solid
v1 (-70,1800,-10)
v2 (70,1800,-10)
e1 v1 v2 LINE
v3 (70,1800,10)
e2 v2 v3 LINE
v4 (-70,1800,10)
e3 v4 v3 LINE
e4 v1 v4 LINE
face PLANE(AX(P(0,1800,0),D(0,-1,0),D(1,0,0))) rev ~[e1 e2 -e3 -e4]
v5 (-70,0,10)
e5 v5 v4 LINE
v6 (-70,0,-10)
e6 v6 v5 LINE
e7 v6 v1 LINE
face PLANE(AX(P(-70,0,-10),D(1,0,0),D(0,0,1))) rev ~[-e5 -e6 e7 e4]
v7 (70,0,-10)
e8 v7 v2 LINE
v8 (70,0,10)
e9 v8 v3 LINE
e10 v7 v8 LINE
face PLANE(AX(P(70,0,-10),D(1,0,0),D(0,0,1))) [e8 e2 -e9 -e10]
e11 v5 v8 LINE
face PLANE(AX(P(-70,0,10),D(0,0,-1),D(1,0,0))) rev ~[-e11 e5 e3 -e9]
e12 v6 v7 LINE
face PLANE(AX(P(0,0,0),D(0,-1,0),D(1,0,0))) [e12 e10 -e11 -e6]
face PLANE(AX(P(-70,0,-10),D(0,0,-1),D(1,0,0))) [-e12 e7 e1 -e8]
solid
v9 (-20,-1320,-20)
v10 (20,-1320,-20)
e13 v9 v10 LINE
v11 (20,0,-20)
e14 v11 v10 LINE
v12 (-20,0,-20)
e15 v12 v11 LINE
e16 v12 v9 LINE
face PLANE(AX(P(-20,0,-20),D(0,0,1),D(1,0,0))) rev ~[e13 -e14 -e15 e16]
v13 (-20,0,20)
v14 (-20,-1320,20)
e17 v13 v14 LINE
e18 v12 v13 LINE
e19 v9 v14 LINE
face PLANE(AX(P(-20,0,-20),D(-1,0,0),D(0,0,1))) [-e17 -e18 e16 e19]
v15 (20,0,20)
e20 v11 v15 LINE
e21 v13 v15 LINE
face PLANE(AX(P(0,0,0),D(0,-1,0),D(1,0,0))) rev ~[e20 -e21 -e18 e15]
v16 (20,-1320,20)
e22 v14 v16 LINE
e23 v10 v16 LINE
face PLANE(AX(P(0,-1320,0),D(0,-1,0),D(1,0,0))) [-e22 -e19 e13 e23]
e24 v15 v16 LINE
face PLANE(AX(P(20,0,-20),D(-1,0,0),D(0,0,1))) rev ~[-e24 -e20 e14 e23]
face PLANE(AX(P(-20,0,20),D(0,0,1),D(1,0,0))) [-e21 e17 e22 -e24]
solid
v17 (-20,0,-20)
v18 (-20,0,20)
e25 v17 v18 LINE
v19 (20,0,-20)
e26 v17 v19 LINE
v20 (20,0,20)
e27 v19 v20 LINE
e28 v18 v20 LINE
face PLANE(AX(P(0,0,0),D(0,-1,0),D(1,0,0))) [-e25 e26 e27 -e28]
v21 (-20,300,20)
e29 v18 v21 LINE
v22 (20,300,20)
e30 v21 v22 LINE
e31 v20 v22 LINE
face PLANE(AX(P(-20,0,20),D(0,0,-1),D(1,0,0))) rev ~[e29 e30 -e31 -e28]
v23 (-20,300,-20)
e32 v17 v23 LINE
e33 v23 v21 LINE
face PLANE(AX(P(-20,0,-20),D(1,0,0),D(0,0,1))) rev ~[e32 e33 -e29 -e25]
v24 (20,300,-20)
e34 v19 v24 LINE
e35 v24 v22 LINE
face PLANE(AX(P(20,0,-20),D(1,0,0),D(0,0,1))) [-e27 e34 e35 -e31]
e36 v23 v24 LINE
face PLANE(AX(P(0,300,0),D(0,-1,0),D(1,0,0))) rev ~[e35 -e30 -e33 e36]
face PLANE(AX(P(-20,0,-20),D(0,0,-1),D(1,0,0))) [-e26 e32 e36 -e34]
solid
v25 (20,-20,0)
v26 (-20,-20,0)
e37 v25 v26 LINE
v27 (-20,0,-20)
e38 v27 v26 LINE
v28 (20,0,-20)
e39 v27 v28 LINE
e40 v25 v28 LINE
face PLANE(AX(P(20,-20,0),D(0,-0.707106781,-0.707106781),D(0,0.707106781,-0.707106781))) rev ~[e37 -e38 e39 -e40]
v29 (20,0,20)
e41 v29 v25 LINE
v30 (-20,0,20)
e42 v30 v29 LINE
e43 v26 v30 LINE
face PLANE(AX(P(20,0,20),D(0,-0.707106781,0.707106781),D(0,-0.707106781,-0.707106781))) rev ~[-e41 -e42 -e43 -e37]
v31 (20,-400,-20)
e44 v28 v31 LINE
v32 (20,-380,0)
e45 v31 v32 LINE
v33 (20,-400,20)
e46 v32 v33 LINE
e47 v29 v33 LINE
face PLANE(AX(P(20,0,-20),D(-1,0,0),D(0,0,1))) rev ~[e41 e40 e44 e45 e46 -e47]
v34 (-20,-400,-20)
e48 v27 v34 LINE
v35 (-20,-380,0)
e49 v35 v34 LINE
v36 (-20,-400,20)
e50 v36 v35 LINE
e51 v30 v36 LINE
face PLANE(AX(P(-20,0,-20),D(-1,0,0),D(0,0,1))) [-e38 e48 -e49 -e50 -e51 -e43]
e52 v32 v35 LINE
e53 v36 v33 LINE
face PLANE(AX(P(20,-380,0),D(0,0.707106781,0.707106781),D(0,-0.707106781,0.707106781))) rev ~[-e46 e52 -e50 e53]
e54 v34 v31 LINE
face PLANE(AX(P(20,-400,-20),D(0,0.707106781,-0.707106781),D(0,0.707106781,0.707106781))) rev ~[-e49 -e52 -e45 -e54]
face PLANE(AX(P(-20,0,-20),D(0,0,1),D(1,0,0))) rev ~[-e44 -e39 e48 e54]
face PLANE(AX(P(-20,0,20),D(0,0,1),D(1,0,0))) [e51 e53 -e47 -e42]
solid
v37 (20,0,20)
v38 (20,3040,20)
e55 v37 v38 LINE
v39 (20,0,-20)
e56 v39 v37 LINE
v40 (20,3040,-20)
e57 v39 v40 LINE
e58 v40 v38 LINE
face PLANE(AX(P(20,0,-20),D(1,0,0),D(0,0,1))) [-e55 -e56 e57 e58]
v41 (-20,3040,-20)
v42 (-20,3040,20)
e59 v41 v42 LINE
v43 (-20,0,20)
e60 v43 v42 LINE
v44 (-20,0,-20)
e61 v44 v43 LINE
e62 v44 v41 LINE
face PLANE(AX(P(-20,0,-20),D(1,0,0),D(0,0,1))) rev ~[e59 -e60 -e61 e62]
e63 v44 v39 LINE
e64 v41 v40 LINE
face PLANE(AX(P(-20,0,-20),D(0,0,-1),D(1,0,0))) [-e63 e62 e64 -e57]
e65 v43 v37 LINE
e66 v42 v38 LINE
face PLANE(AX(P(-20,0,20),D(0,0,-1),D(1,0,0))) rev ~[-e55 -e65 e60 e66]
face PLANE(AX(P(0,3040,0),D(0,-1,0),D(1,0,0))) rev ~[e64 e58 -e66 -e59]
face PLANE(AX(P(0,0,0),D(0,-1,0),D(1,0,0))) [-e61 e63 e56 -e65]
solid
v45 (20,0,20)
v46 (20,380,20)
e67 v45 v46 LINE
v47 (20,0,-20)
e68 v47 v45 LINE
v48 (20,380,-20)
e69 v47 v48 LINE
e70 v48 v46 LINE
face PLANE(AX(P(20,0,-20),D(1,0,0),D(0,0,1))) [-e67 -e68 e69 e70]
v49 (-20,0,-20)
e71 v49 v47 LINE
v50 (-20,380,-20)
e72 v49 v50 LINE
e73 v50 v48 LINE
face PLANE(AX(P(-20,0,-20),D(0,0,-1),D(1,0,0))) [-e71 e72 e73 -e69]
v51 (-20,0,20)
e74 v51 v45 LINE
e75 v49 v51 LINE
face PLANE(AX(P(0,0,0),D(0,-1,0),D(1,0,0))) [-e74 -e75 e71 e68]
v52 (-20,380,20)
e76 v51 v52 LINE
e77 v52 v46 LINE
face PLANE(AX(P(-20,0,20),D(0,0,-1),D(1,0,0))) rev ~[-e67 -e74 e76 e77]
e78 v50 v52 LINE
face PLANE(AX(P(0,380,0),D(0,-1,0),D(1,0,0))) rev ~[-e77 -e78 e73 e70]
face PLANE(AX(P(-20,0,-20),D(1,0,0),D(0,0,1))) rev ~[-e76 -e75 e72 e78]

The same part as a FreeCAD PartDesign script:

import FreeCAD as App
import Part
import Sketcher
Q = App.Units.Quantity


def add_polygon(sketch, points):
    """Adds a closed chain of lines whose ends are joined by coincident constraints."""
    first, n = sketch.GeometryCount, len(points)
    for a, b in zip(points, points[1:] + points[:1]):
        sketch.addGeometry(Part.LineSegment(App.Vector(*a, 0), App.Vector(*b, 0)), False)
    for i in range(n):
        sketch.addConstraint(Sketcher.Constraint("Coincident", first + i, 2, first + (i + 1) % n, 1))

doc = App.newDocument("Part")
body = doc.addObject("PartDesign::Body", "Body")

# Sketch on XZ plane
sketch1 = doc.addObject("Sketcher::SketchObject", "Sketch")
body.addObject(sketch1)
sketch1.AttachmentSupport = (doc.XZ_Plane, [""])
sketch1.MapMode = "FlatFace"
add_polygon(sketch1, [(-70, 10), (-70, -10), (70, -10), (70, 10)])  # lines 0-3
sketch1.addConstraint([
    Sketcher.Constraint("Vertical", 0),
    Sketcher.Constraint("Horizontal", 1),
    Sketcher.Constraint("Vertical", 2),
    Sketcher.Constraint("Horizontal", 3),
    Sketcher.Constraint("Symmetric", 0, 2, 2, 2, -1, 1),
    Sketcher.Constraint("DistanceX", 1, 1, 1, 2, Q("140 mm")),
    Sketcher.Constraint("DistanceY", 0, 2, 0, 1, Q("20 mm")),
])
pad1 = doc.addObject("PartDesign::Pad", "Pad")
body.addObject(pad1)
pad1.Profile = sketch1
pad1.Length = 1800
pad1.Reversed = True
body2 = doc.addObject("PartDesign::Body", "Body001")

# Sketch on XZ plane
sketch2 = doc.addObject("Sketcher::SketchObject", "Sketch001")
body2.addObject(sketch2)
sketch2.AttachmentSupport = (doc.getObject("XZ_Plane001"), [""])
sketch2.MapMode = "FlatFace"
add_polygon(sketch2, [(-20, 20), (-20, -20), (20, -20), (20, 20)])  # lines 0-3
sketch2.addConstraint([
    Sketcher.Constraint("Vertical", 0),
    Sketcher.Constraint("Horizontal", 1),
    Sketcher.Constraint("Vertical", 2),
    Sketcher.Constraint("Horizontal", 3),
    Sketcher.Constraint("Symmetric", 0, 2, 2, 2, -1, 1),
    Sketcher.Constraint("Equal", 3, 0),
    Sketcher.Constraint("DistanceX", 1, 1, 1, 2, Q("40 mm")),
])
pad2 = doc.addObject("PartDesign::Pad", "Pad001")
body2.addObject(pad2)
pad2.Profile = sketch2
pad2.Length = 380
pad2.Reversed = True
body3 = doc.addObject("PartDesign::Body", "Body002")

# Sketch on XZ plane
sketch3 = doc.addObject("Sketcher::SketchObject", "Sketch002")
body3.addObject(sketch3)
sketch3.AttachmentSupport = (doc.getObject("XZ_Plane002"), [""])
sketch3.MapMode = "FlatFace"
add_polygon(sketch3, [(-20, 20), (-20, -20), (20, -20), (20, 20)])  # lines 0-3
sketch3.addConstraint([
    Sketcher.Constraint("Vertical", 0),
    Sketcher.Constraint("Horizontal", 1),
    Sketcher.Constraint("Vertical", 2),
    Sketcher.Constraint("Horizontal", 3),
    Sketcher.Constraint("Symmetric", 0, 2, 2, 2, -1, 1),
    Sketcher.Constraint("Equal", 3, 0),
    Sketcher.Constraint("DistanceX", 1, 1, 1, 2, Q("40 mm")),
])
pad3 = doc.addObject("PartDesign::Pad", "Pad002")
body3.addObject(pad3)
pad3.Profile = sketch3
pad3.Length = 400

# Sketch on YZ plane
sketch4 = doc.addObject("Sketcher::SketchObject", "Sketch003")
body3.addObject(sketch4)
sketch4.AttachmentSupport = (doc.getObject("YZ_Plane002"), [""])
sketch4.MapMode = "FlatFace"
sketch4.AttachmentOffset = App.Placement(App.Vector(0, 0, 20), App.Rotation())
add_polygon(sketch4, [(0, -20), (0, 20), (-20, 0)])  # lines 0-2
add_polygon(sketch4, [(-380, 0), (-400, 20), (-400, -20)])  # lines 3-5
sketch4.addConstraint([
    Sketcher.Constraint("Vertical", 0),
    Sketcher.Constraint("Vertical", 4),
    Sketcher.Constraint("Symmetric", 0, 2, 2, 2, -1, 1),
    Sketcher.Constraint("PointOnObject", 1, 2, -1),
    Sketcher.Constraint("PointOnObject", 5, 2, -1),
    Sketcher.Constraint("Perpendicular", 1, 2),
    Sketcher.Constraint("Parallel", 2, 3),
    Sketcher.Constraint("Perpendicular", 3, 5),
    Sketcher.Constraint("Horizontal", 0, 2, 3, 2),
    Sketcher.Constraint("DistanceY", 0, 1, 0, 2, Q("40 mm")),
    Sketcher.Constraint("DistanceX", 3, 2, -1, 1, Q("400 mm")),
])
pocket1 = doc.addObject("PartDesign::Pocket", "Pocket")
body3.addObject(pocket1)
pocket1.Profile = sketch4
pocket1.Length = 84
body4 = doc.addObject("PartDesign::Body", "Body003")

# Sketch on XZ plane
sketch5 = doc.addObject("Sketcher::SketchObject", "Sketch004")
body4.addObject(sketch5)
sketch5.AttachmentSupport = (doc.getObject("XZ_Plane003"), [""])
sketch5.MapMode = "FlatFace"
add_polygon(sketch5, [(-20, 20), (-20, -20), (20, -20), (20, 20)])  # lines 0-3
sketch5.addConstraint([
    Sketcher.Constraint("Vertical", 0),
    Sketcher.Constraint("Horizontal", 1),
    Sketcher.Constraint("Vertical", 2),
    Sketcher.Constraint("Horizontal", 3),
    Sketcher.Constraint("Symmetric", 0, 2, 2, 2, -1, 1),
    Sketcher.Constraint("Equal", 3, 0),
    Sketcher.Constraint("DistanceX", 1, 1, 1, 2, Q("40 mm")),
])
pad4 = doc.addObject("PartDesign::Pad", "Pad003")
body4.addObject(pad4)
pad4.Profile = sketch5
pad4.Length = 300
pad4.Reversed = True
body5 = doc.addObject("PartDesign::Body", "Body004")

# Sketch on XZ plane
sketch6 = doc.addObject("Sketcher::SketchObject", "Sketch005")
body5.addObject(sketch6)
sketch6.AttachmentSupport = (doc.getObject("XZ_Plane004"), [""])
sketch6.MapMode = "FlatFace"
add_polygon(sketch6, [(-20, 20), (-20, -20), (20, -20), (20, 20)])  # lines 0-3
sketch6.addConstraint([
    Sketcher.Constraint("Vertical", 0),
    Sketcher.Constraint("Horizontal", 1),
    Sketcher.Constraint("Vertical", 2),
    Sketcher.Constraint("Horizontal", 3),
    Sketcher.Constraint("Symmetric", 0, 2, 2, 2, -1, 1),
    Sketcher.Constraint("Equal", 3, 0),
    Sketcher.Constraint("DistanceX", 1, 1, 1, 2, Q("40 mm")),
])
pad5 = doc.addObject("PartDesign::Pad", "Pad004")
body5.addObject(pad5)
pad5.Profile = sketch6
pad5.Length = 1320
body6 = doc.addObject("PartDesign::Body", "Body005")

# Sketch on XZ plane
sketch7 = doc.addObject("Sketcher::SketchObject", "Sketch006")
body6.addObject(sketch7)
sketch7.AttachmentSupport = (doc.getObject("XZ_Plane005"), [""])
sketch7.MapMode = "FlatFace"
add_polygon(sketch7, [(-20, 20), (-20, -20), (20, -20), (20, 20)])  # lines 0-3
sketch7.addConstraint([
    Sketcher.Constraint("Vertical", 0),
    Sketcher.Constraint("Horizontal", 1),
    Sketcher.Constraint("Vertical", 2),
    Sketcher.Constraint("Horizontal", 3),
    Sketcher.Constraint("Symmetric", 0, 2, 2, 2, -1, 1),
    Sketcher.Constraint("Equal", 3, 0),
    Sketcher.Constraint("DistanceX", 1, 1, 1, 2, Q("40 mm")),
])
pad6 = doc.addObject("PartDesign::Pad", "Pad005")
body6.addObject(pad6)
pad6.Profile = sketch7
pad6.Length = 3040
pad6.Reversed = True

doc.recompute()
